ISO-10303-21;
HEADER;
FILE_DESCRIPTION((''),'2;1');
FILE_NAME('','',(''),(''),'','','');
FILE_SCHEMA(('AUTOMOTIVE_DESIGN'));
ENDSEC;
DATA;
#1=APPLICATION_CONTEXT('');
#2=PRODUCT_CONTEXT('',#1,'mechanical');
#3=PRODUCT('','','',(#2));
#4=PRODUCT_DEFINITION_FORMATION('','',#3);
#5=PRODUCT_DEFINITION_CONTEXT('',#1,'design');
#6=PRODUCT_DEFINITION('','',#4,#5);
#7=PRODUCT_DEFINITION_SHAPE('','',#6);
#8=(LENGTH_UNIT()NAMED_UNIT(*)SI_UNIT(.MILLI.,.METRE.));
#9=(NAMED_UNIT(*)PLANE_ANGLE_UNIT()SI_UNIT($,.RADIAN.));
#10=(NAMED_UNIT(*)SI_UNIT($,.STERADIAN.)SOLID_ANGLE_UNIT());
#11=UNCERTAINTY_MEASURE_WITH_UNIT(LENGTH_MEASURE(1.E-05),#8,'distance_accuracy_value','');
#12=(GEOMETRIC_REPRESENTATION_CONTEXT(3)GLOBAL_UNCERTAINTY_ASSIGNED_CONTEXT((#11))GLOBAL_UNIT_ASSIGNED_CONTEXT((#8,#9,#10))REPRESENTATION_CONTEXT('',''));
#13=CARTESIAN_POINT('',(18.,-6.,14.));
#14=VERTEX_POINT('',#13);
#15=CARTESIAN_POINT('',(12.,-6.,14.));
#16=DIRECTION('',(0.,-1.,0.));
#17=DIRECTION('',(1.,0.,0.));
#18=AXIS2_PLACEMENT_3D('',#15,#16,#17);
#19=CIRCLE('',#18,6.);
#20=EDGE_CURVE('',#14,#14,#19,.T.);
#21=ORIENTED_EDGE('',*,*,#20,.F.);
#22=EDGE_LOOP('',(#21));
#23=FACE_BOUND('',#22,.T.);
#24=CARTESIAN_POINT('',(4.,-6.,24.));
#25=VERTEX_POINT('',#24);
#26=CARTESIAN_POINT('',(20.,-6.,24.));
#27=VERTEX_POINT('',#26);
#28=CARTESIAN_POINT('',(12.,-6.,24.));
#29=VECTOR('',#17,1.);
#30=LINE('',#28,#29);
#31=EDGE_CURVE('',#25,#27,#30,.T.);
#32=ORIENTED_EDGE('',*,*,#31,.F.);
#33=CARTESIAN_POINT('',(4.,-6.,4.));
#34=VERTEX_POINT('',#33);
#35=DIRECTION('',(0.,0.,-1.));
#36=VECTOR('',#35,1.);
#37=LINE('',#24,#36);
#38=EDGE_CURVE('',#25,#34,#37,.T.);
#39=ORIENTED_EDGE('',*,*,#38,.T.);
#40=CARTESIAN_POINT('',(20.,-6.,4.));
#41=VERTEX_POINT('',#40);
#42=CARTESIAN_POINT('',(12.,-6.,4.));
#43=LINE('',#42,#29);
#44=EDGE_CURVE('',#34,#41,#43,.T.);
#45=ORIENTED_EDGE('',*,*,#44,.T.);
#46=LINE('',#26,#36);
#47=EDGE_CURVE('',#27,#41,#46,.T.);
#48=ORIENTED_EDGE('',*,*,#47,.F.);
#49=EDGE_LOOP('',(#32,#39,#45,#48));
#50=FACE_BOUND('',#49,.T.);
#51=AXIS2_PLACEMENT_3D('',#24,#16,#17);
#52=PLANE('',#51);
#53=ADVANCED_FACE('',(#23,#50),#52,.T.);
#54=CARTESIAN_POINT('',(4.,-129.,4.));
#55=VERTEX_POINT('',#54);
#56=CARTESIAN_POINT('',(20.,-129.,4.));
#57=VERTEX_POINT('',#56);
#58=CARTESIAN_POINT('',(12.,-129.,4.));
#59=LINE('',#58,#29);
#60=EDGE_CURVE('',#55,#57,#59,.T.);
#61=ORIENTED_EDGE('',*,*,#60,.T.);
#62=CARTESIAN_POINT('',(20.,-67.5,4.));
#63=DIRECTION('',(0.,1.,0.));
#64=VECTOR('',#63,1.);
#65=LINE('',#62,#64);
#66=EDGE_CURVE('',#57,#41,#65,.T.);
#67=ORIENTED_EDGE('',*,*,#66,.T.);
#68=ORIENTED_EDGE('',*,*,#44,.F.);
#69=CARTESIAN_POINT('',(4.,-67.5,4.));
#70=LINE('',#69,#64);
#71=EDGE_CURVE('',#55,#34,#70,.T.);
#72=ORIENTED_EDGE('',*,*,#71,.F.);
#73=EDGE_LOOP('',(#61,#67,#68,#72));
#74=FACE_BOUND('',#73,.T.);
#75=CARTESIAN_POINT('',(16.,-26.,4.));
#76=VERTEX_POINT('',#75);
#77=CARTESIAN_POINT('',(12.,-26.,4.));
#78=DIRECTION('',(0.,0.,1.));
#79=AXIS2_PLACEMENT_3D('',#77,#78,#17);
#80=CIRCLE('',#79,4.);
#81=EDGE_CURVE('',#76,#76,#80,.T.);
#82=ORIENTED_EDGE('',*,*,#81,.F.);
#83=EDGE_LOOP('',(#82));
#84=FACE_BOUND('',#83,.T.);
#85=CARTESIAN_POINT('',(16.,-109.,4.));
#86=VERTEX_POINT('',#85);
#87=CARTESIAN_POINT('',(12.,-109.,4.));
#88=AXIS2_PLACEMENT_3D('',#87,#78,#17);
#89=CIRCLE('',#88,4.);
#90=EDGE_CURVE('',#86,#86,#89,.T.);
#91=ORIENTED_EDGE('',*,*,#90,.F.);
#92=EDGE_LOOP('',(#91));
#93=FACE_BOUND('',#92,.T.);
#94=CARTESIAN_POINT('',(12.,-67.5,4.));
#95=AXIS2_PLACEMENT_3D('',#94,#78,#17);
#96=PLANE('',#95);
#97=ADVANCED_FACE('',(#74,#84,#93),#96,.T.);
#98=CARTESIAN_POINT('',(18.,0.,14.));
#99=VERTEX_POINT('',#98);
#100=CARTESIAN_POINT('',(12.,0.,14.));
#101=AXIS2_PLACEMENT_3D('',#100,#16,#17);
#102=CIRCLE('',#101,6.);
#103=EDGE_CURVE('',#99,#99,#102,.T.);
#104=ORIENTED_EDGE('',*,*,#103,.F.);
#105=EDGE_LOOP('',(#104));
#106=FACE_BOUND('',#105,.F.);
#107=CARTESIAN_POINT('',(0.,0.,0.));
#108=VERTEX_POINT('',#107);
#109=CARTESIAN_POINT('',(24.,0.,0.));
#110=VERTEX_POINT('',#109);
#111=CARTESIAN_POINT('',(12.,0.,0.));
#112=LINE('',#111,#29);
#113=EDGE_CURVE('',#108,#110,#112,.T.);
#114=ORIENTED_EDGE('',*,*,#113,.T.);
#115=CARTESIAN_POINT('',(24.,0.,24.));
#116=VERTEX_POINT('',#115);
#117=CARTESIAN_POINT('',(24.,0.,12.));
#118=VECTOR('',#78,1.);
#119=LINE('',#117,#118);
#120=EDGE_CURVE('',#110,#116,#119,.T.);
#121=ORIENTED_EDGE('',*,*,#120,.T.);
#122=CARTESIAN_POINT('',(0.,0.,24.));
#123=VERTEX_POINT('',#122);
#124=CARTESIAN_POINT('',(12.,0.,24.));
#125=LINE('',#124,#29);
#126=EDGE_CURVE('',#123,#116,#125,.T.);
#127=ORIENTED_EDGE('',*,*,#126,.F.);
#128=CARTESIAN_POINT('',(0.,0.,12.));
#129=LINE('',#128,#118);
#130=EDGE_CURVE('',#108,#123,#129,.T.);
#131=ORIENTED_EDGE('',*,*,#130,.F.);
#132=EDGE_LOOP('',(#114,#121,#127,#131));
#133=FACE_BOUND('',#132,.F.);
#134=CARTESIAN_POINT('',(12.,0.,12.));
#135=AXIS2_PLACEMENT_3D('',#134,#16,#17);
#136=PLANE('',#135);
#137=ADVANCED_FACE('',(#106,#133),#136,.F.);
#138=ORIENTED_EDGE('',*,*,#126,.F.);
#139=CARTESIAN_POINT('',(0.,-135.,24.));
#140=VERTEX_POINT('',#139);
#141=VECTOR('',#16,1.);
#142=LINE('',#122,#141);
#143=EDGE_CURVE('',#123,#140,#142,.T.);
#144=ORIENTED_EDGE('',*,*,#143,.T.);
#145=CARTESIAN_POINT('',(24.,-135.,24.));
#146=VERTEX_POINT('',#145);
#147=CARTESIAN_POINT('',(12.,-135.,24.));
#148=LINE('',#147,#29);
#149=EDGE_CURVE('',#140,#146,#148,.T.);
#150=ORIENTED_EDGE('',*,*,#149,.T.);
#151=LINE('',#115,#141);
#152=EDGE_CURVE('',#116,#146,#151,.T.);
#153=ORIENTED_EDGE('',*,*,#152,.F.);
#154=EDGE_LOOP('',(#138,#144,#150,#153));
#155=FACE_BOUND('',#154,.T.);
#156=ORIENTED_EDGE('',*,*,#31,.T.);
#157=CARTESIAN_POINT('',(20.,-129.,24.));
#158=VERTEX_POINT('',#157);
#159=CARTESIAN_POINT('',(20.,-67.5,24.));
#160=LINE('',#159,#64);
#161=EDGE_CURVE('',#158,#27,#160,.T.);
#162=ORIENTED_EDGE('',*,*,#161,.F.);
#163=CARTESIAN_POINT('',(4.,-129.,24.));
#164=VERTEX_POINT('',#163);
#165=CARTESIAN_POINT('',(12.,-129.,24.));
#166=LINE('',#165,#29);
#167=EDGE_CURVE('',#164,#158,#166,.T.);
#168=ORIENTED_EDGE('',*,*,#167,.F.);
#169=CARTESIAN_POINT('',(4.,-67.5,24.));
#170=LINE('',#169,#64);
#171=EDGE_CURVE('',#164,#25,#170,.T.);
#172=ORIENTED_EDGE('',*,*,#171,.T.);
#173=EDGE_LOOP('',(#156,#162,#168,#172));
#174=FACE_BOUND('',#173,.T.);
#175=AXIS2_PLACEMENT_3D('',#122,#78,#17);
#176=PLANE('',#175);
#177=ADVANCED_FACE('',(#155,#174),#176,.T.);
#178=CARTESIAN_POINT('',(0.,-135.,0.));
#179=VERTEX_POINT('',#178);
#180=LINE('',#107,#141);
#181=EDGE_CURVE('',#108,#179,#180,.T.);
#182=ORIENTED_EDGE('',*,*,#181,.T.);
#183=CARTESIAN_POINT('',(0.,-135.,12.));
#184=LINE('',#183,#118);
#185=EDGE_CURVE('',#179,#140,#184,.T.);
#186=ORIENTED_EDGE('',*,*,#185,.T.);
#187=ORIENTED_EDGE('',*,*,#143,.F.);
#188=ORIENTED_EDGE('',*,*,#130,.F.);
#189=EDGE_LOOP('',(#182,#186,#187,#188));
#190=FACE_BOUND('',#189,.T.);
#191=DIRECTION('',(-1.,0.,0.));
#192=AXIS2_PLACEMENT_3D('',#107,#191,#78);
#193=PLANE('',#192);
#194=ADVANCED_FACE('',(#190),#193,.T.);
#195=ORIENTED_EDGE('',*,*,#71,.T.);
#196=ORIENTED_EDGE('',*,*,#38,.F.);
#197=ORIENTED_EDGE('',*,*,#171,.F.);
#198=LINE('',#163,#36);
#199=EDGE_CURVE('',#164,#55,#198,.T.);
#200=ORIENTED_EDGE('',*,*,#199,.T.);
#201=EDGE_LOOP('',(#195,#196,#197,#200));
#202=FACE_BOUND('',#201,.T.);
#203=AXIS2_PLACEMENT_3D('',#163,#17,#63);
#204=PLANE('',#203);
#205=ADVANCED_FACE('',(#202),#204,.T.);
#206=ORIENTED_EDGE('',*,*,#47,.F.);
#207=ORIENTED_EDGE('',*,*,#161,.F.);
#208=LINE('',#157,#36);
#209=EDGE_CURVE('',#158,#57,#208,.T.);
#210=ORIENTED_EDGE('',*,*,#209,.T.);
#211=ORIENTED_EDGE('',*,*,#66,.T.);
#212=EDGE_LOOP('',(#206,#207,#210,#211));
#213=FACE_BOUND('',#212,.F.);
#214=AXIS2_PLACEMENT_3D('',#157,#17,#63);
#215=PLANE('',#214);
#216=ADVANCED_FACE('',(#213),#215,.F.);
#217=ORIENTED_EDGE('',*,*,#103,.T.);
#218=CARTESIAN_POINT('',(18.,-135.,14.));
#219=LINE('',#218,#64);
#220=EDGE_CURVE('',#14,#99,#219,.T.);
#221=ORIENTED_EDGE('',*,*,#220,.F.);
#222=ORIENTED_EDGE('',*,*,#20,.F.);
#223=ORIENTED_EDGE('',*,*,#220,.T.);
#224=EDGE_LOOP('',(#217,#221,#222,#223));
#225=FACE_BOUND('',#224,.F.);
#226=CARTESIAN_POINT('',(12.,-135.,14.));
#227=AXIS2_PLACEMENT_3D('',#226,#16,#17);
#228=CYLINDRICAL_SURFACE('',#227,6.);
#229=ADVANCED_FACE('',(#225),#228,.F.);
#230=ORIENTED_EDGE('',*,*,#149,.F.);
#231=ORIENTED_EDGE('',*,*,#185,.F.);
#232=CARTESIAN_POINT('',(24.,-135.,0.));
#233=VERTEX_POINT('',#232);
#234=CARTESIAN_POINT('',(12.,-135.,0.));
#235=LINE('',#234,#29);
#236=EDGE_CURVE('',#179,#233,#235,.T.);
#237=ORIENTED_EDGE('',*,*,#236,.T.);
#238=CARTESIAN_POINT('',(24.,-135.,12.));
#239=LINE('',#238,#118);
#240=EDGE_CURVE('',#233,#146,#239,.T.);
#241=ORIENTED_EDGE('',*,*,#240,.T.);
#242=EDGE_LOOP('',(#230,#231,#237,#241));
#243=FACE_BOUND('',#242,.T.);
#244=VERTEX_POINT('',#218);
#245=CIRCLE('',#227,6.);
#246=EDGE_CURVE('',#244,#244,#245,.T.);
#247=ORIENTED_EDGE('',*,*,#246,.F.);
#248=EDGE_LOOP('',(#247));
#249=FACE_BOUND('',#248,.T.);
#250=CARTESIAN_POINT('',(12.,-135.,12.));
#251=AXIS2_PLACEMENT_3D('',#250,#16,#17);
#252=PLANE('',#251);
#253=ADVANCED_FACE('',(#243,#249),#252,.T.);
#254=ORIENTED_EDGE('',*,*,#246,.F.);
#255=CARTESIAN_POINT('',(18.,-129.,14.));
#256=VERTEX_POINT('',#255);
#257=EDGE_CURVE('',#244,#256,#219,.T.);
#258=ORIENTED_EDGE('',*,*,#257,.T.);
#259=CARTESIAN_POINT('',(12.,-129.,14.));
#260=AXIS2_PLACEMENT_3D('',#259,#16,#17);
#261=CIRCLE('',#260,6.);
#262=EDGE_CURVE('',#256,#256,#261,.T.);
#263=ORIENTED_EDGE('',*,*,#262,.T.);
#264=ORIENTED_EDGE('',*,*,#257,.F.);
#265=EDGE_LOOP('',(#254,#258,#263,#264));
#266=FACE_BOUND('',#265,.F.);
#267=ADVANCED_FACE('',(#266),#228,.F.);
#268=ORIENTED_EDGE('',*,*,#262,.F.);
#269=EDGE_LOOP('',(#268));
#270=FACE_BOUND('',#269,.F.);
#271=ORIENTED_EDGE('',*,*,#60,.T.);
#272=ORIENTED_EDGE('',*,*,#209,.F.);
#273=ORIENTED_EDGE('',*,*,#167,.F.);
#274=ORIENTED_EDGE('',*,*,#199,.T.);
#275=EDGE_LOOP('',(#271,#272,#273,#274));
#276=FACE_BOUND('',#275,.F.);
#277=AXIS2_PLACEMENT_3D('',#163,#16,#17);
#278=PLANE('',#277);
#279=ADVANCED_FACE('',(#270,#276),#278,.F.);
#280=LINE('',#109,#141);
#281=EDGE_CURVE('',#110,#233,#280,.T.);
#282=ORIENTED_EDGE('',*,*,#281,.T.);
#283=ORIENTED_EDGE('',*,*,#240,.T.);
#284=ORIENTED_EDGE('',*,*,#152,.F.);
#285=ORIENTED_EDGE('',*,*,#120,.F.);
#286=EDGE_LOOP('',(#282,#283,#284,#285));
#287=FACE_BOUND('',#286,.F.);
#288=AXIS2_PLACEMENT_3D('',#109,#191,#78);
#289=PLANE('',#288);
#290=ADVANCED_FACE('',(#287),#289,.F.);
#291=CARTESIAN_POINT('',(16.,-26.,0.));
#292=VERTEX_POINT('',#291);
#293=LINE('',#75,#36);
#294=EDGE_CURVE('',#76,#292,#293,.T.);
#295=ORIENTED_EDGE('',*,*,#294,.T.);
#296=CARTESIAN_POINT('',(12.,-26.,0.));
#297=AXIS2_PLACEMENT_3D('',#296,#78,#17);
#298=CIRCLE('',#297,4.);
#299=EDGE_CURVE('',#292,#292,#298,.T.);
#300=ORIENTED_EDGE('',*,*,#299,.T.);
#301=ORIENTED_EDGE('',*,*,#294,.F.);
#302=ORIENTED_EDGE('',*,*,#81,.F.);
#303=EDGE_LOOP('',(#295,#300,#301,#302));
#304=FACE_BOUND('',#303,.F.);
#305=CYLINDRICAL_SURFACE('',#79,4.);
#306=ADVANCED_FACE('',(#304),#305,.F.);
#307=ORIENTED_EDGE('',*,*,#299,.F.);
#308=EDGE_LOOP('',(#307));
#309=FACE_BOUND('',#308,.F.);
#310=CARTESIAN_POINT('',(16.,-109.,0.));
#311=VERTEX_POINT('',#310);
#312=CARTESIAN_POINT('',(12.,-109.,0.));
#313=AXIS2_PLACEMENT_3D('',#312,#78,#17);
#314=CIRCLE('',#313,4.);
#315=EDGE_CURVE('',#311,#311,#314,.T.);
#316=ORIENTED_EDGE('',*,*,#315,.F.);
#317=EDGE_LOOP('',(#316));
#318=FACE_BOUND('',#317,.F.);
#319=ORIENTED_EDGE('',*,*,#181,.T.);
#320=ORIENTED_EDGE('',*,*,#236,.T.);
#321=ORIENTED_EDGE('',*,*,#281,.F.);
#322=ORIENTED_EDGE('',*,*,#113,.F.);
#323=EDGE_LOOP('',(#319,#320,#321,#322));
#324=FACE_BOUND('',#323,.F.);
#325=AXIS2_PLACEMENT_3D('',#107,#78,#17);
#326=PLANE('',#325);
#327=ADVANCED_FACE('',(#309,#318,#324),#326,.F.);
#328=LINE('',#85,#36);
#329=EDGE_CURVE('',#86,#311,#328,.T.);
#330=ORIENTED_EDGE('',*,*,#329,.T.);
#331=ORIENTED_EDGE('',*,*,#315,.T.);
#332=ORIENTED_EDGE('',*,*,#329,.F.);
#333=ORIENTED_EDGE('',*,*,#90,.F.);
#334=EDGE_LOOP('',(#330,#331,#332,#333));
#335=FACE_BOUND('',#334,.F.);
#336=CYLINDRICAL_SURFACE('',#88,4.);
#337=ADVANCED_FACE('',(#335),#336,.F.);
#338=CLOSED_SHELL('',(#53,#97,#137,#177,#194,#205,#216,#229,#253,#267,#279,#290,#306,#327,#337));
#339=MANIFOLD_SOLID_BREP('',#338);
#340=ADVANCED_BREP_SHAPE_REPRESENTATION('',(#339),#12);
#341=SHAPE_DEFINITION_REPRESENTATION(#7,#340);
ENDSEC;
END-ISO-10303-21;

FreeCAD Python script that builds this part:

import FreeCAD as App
import Part
import Sketcher
Q = App.Units.Quantity

doc = App.newDocument("Part")
body = doc.addObject("PartDesign::Body", "Body")

# Sketch on XZ plane
sketch1 = doc.addObject("Sketcher::SketchObject", "Sketch")
body.addObject(sketch1)
sketch1.AttachmentSupport = (doc.XZ_Plane, [""])
sketch1.MapMode = "FlatFace"
sketch1.addGeometry(Part.LineSegment(App.Vector(0, 24, 0), App.Vector(0, 0, 0)), False)
sketch1.addGeometry(Part.LineSegment(App.Vector(0, 0, 0), App.Vector(24, 0, 0)), False)
sketch1.addGeometry(Part.LineSegment(App.Vector(24, 0, 0), App.Vector(24, 24, 0)), False)
sketch1.addGeometry(Part.LineSegment(App.Vector(24, 24, 0), App.Vector(0, 24, 0)), False)
sketch1.addConstraint(Sketcher.Constraint("Coincident", 0, 2, 1, 1))
sketch1.addConstraint(Sketcher.Constraint("Coincident", 1, 2, 2, 1))
sketch1.addConstraint(Sketcher.Constraint("Coincident", 2, 2, 3, 1))
sketch1.addConstraint(Sketcher.Constraint("Coincident", 3, 2, 0, 1))
sketch1.addConstraint(Sketcher.Constraint("Vertical", 0))
sketch1.addConstraint(Sketcher.Constraint("Horizontal", 1))
sketch1.addConstraint(Sketcher.Constraint("Vertical", 2))
sketch1.addConstraint(Sketcher.Constraint("Horizontal", 3))
sketch1.addConstraint(Sketcher.Constraint("Coincident", 0, 2, -1, 1))
sketch1.addConstraint(Sketcher.Constraint("Equal", 3, 0))
sketch1.addConstraint(Sketcher.Constraint("DistanceX", 1, 1, 1, 2, Q("24 mm")))
pad1 = doc.addObject("PartDesign::Pad", "Pad")
body.addObject(pad1)
pad1.Profile = sketch1
pad1.Length = 135

# Sketch on XY plane
sketch2 = doc.addObject("Sketcher::SketchObject", "Sketch001")
body.addObject(sketch2)
sketch2.AttachmentSupport = (doc.XY_Plane, [""])
sketch2.MapMode = "FlatFace"
sketch2.AttachmentOffset = App.Placement(App.Vector(0, 0, 24), App.Rotation())
sketch2.addGeometry(Part.LineSegment(App.Vector(4, -6, 0), App.Vector(4, -129, 0)), False)
sketch2.addGeometry(Part.LineSegment(App.Vector(4, -129, 0), App.Vector(20, -129, 0)), False)
sketch2.addGeometry(Part.LineSegment(App.Vector(20, -129, 0), App.Vector(20, -6, 0)), False)
sketch2.addGeometry(Part.LineSegment(App.Vector(20, -6, 0), App.Vector(4, -6, 0)), False)
sketch2.addConstraint(Sketcher.Constraint("Coincident", 0, 2, 1, 1))
sketch2.addConstraint(Sketcher.Constraint("Coincident", 1, 2, 2, 1))
sketch2.addConstraint(Sketcher.Constraint("Coincident", 2, 2, 3, 1))
sketch2.addConstraint(Sketcher.Constraint("Coincident", 3, 2, 0, 1))
sketch2.addConstraint(Sketcher.Constraint("Vertical", 0))
sketch2.addConstraint(Sketcher.Constraint("Horizontal", 1))
sketch2.addConstraint(Sketcher.Constraint("Vertical", 2))
sketch2.addConstraint(Sketcher.Constraint("Horizontal", 3))
sketch2.addConstraint(Sketcher.Constraint("DistanceX", 1, 1, 1, 2, Q("16 mm")))
sketch2.addConstraint(Sketcher.Constraint("DistanceY", 0, 2, 0, 1, Q("123 mm")))
sketch2.addConstraint(Sketcher.Constraint("DistanceX", -1, 1, 0, 2, Q("4 mm")))
sketch2.addConstraint(Sketcher.Constraint("DistanceY", 0, 2, -1, 1, Q("129 mm")))
pocket1 = doc.addObject("PartDesign::Pocket", "Pocket")
body.addObject(pocket1)
pocket1.Profile = sketch2
pocket1.Length = 20

# Sketch on XZ plane
sketch3 = doc.addObject("Sketcher::SketchObject", "Sketch002")
body.addObject(sketch3)
sketch3.AttachmentSupport = (doc.XZ_Plane, [""])
sketch3.MapMode = "FlatFace"
sketch3.AttachmentOffset = App.Placement(App.Vector(0, 0, 135), App.Rotation())
sketch3.addGeometry(Part.Circle(App.Vector(12, 14, 0), App.Vector(0, 0, 1), 6), False)
sketch3.addConstraint(Sketcher.Constraint("Diameter", 0, Q("12 mm")))
sketch3.addConstraint(Sketcher.Constraint("DistanceX", -1, 1, 0, 3, Q("12 mm")))
sketch3.addConstraint(Sketcher.Constraint("DistanceY", -1, 1, 0, 3, Q("14 mm")))
pocket2 = doc.addObject("PartDesign::Pocket", "Pocket001")
body.addObject(pocket2)
pocket2.Profile = sketch3
pocket2.Type = "ThroughAll"

# Sketch on XY plane
sketch4 = doc.addObject("Sketcher::SketchObject", "Sketch003")
body.addObject(sketch4)
sketch4.AttachmentSupport = (doc.XY_Plane, [""])
sketch4.MapMode = "FlatFace"
sketch4.AttachmentOffset = App.Placement(App.Vector(0, 0, 4), App.Rotation())
sketch4.addGeometry(Part.Circle(App.Vector(12, -26, 0), App.Vector(0, 0, 1), 4), False)
sketch4.addGeometry(Part.Circle(App.Vector(12, -109, 0), App.Vector(0, 0, 1), 4), False)
sketch4.addConstraint(Sketcher.Constraint("Equal", 0, 1))
sketch4.addConstraint(Sketcher.Constraint("Vertical", 0, 3, 1, 3))
sketch4.addConstraint(Sketcher.Constraint("Diameter", 0, Q("8 mm")))
sketch4.addConstraint(Sketcher.Constraint("DistanceX", -1, 1, 0, 3, Q("12 mm")))
sketch4.addConstraint(Sketcher.Constraint("DistanceY", 0, 3, -1, 1, Q("26 mm")))
sketch4.addConstraint(Sketcher.Constraint("DistanceY", 1, 3, -1, 1, Q("109 mm")))
pocket3 = doc.addObject("PartDesign::Pocket", "Pocket002")
body.addObject(pocket3)
pocket3.Profile = sketch4
pocket3.Length = 25

doc.recompute()
